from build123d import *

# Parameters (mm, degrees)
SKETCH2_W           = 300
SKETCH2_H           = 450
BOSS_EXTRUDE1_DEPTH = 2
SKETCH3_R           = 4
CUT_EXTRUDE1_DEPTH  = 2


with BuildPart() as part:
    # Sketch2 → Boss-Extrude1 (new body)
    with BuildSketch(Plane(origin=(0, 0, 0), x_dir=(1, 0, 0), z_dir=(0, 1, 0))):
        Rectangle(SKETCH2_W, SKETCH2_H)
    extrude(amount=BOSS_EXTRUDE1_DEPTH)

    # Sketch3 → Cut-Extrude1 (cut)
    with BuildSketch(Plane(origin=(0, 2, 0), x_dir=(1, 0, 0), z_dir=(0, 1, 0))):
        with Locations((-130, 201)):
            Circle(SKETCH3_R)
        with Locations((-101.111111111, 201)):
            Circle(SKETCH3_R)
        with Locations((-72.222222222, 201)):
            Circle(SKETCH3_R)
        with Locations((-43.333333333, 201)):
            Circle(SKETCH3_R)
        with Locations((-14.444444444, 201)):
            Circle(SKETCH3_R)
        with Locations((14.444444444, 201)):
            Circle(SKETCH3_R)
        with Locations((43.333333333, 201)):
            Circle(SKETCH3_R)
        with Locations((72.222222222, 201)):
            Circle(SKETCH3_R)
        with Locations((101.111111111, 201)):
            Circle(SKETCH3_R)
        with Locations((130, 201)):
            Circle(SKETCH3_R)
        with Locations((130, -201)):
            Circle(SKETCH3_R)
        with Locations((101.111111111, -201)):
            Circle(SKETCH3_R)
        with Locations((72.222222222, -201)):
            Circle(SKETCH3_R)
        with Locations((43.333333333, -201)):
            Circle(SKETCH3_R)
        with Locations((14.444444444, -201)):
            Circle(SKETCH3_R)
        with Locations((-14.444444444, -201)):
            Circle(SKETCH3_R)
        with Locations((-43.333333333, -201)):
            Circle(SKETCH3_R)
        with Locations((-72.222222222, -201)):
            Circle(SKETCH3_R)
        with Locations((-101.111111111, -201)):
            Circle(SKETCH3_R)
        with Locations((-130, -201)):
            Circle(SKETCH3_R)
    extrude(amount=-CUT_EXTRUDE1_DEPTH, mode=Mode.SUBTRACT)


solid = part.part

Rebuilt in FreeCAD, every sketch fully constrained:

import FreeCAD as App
import Part
import Sketcher

doc = App.newDocument("Part")
body = doc.addObject("PartDesign::Body", "Body")

# Sketch on XZ plane
sketch1 = body.newObject("Sketcher::SketchObject", "Sketch")
sketch1.AttachmentSupport = (doc.getObject("XZ_Plane"), [""])
sketch1.MapMode = "FlatFace"
sketch1.addGeometry([
    Part.LineSegment(App.Vector(-150, -225, 0), App.Vector(-150, 225, 0)),
    Part.LineSegment(App.Vector(-150, 225, 0), App.Vector(150, 225, 0)),
    Part.LineSegment(App.Vector(150, 225, 0), App.Vector(150, -225, 0)),
    Part.LineSegment(App.Vector(150, -225, 0), App.Vector(-150, -225, 0)),
], False)
sketch1.addConstraint([
    Sketcher.Constraint("Coincident", 0, 2, 1, 1),
    Sketcher.Constraint("Coincident", 1, 2, 2, 1),
    Sketcher.Constraint("Coincident", 2, 2, 3, 1),
    Sketcher.Constraint("Coincident", 3, 2, 0, 1),
    Sketcher.Constraint("Vertical", 0),
    Sketcher.Constraint("Horizontal", 1),
    Sketcher.Constraint("Vertical", 2),
    Sketcher.Constraint("Horizontal", 3),
    Sketcher.Constraint("Symmetric", 0, 2, 2, 2, -1, 1),
    Sketcher.Constraint("DistanceX", 1, 1, 1, 2, 300.0),
    Sketcher.Constraint("DistanceY", 0, 1, 0, 2, 450.0),
])
pad1 = body.newObject("PartDesign::Pad", "Pad")
pad1.Profile = sketch1
pad1.Length = 2
pad1.Reversed = True

# Sketch on XZ plane
sketch2 = body.newObject("Sketcher::SketchObject", "Sketch001")
sketch2.AttachmentSupport = (doc.getObject("XZ_Plane"), [""])
sketch2.MapMode = "FlatFace"
sketch2.AttachmentOffset = App.Placement(App.Vector(0, 0, -2), App.Rotation())
sketch2.addGeometry([
    Part.Circle(App.Vector(-130, -201, 0), App.Vector(0, 0, 1), 4),  # 0
    Part.Circle(App.Vector(-101.111111, -201, 0), App.Vector(0, 0, 1), 4),  # 1
    Part.Circle(App.Vector(-72.222222, -201, 0), App.Vector(0, 0, 1), 4),  # 2
    Part.Circle(App.Vector(-43.333333, -201, 0), App.Vector(0, 0, 1), 4),  # 3
    Part.Circle(App.Vector(-14.444444, -201, 0), App.Vector(0, 0, 1), 4),  # 4
    Part.Circle(App.Vector(14.444444, -201, 0), App.Vector(0, 0, 1), 4),  # 5
    Part.Circle(App.Vector(43.333333, -201, 0), App.Vector(0, 0, 1), 4),  # 6
    Part.Circle(App.Vector(72.222222, -201, 0), App.Vector(0, 0, 1), 4),  # 7
    Part.Circle(App.Vector(101.111111, -201, 0), App.Vector(0, 0, 1), 4),  # 8
    Part.Circle(App.Vector(130, -201, 0), App.Vector(0, 0, 1), 4),  # 9
    Part.Circle(App.Vector(130, 201, 0), App.Vector(0, 0, 1), 4),  # 10
    Part.Circle(App.Vector(101.111111, 201, 0), App.Vector(0, 0, 1), 4),  # 11
    Part.Circle(App.Vector(72.222222, 201, 0), App.Vector(0, 0, 1), 4),  # 12
    Part.Circle(App.Vector(43.333333, 201, 0), App.Vector(0, 0, 1), 4),  # 13
    Part.Circle(App.Vector(14.444444, 201, 0), App.Vector(0, 0, 1), 4),  # 14
    Part.Circle(App.Vector(-14.444444, 201, 0), App.Vector(0, 0, 1), 4),  # 15
    Part.Circle(App.Vector(-43.333333, 201, 0), App.Vector(0, 0, 1), 4),  # 16
    Part.Circle(App.Vector(-72.222222, 201, 0), App.Vector(0, 0, 1), 4),  # 17
    Part.Circle(App.Vector(-101.111111, 201, 0), App.Vector(0, 0, 1), 4),  # 18
    Part.Circle(App.Vector(-130, 201, 0), App.Vector(0, 0, 1), 4),  # 19
], False)
sketch2.addConstraint([
    Sketcher.Constraint("Equal", 0, 1),
    Sketcher.Constraint("Equal", 1, 2),
    Sketcher.Constraint("Equal", 2, 3),
    Sketcher.Constraint("Equal", 3, 4),
    Sketcher.Constraint("Equal", 4, 5),
    Sketcher.Constraint("Equal", 5, 6),
    Sketcher.Constraint("Equal", 6, 7),
    Sketcher.Constraint("Equal", 7, 8),
    Sketcher.Constraint("Equal", 8, 9),
    Sketcher.Constraint("Equal", 9, 10),
    Sketcher.Constraint("Equal", 10, 11),
    Sketcher.Constraint("Equal", 11, 12),
    Sketcher.Constraint("Equal", 12, 13),
    Sketcher.Constraint("Equal", 13, 14),
    Sketcher.Constraint("Equal", 14, 15),
    Sketcher.Constraint("Equal", 15, 16),
    Sketcher.Constraint("Equal", 16, 17),
    Sketcher.Constraint("Equal", 17, 18),
    Sketcher.Constraint("Equal", 18, 19),
    Sketcher.Constraint("Symmetric", 0, 3, 10, 3, -1, 1),
    Sketcher.Constraint("Symmetric", 1, 3, 11, 3, -1, 1),
    Sketcher.Constraint("Symmetric", 2, 3, 12, 3, -1, 1),
    Sketcher.Constraint("Symmetric", 3, 3, 13, 3, -1, 1),
    Sketcher.Constraint("Symmetric", 4, 3, 14, 3, -1, 1),
    Sketcher.Constraint("Symmetric", 5, 3, 15, 3, -1, 1),
    Sketcher.Constraint("Symmetric", 6, 3, 16, 3, -1, 1),
    Sketcher.Constraint("Symmetric", 7, 3, 17, 3, -1, 1),
    Sketcher.Constraint("Symmetric", 8, 3, 18, 3, -1, 1),
    Sketcher.Constraint("Symmetric", 9, 3, 19, 3, -1, 1),
    Sketcher.Constraint("Symmetric", 4, 3, 5, 3, -2),
    Sketcher.Constraint("Symmetric", 3, 3, 6, 3, -2),
    Sketcher.Constraint("Symmetric", 2, 3, 7, 3, -2),
    Sketcher.Constraint("Symmetric", 1, 3, 8, 3, -2),
    Sketcher.Constraint("Symmetric", 0, 3, 9, 3, -2),
    Sketcher.Constraint("Horizontal", 0, 3, 1, 3),
    Sketcher.Constraint("Horizontal", 1, 3, 2, 3),
    Sketcher.Constraint("Horizontal", 2, 3, 3, 3),
    Sketcher.Constraint("Horizontal", 3, 3, 4, 3),
    Sketcher.Constraint("Diameter", 0, 8.0),
    Sketcher.Constraint("DistanceX", 0, 3, -1, 1, 130.0),
    Sketcher.Constraint("DistanceY", 0, 3, -1, 1, 201.0),
    Sketcher.Constraint("DistanceX", 1, 3, -1, 1, 101.111111),
    Sketcher.Constraint("DistanceX", 1, 3, 2, 3, 28.888889),
    Sketcher.Constraint("DistanceX", 2, 3, 3, 3, 28.888889),
    Sketcher.Constraint("DistanceX", 3, 3, 4, 3, 28.888889),
])
pocket1 = body.newObject("PartDesign::Pocket", "Pocket")
pocket1.Profile = sketch2
pocket1.Length = 2
pocket1.Reversed = True

doc.recompute()
